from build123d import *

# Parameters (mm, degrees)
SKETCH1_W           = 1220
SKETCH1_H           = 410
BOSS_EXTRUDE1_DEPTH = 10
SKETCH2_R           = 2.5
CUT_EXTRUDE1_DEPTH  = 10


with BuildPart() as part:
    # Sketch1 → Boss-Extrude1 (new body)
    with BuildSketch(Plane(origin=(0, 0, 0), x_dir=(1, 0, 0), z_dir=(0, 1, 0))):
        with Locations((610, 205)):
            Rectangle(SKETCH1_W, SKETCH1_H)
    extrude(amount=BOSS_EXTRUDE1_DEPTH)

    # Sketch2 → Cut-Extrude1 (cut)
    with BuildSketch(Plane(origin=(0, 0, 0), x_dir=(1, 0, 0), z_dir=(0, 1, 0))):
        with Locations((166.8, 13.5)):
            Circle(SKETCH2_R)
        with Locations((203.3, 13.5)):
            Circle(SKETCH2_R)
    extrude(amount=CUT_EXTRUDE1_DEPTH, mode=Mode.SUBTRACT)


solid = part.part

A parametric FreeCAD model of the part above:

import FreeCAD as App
import Part
import Sketcher
from FreeCAD import Vector

doc = App.newDocument("Part")
body = doc.addObject("PartDesign::Body", "Body")

# Sketch on XZ plane
sketch1 = body.newObject("Sketcher::SketchObject", "Sketch")
sketch1.AttachmentSupport = (doc.getObject("XZ_Plane"), [""])
sketch1.MapMode = "FlatFace"
sketch1.addGeometry([
    Part.LineSegment(Vector(0, -410, 0), Vector(0, 0, 0)),
    Part.LineSegment(Vector(0, 0, 0), Vector(1220, 0, 0)),
    Part.LineSegment(Vector(1220, 0, 0), Vector(1220, -410, 0)),
    Part.LineSegment(Vector(1220, -410, 0), Vector(0, -410, 0)),
], False)
sketch1.addConstraint([
    Sketcher.Constraint("Coincident", 0, 2, 1, 1),
    Sketcher.Constraint("Coincident", 1, 2, 2, 1),
    Sketcher.Constraint("Coincident", 2, 2, 3, 1),
    Sketcher.Constraint("Coincident", 3, 2, 0, 1),
    Sketcher.Constraint("Vertical", 0),
    Sketcher.Constraint("Horizontal", 1),
    Sketcher.Constraint("Vertical", 2),
    Sketcher.Constraint("Horizontal", 3),
    Sketcher.Constraint("Coincident", 0, 2, -1, 1),
    Sketcher.Constraint("DistanceX", 1, 1, 1, 2, 1220.0),
    Sketcher.Constraint("DistanceY", 0, 1, 0, 2, 410.0),
])
pad1 = body.newObject("PartDesign::Pad", "Pad")
pad1.Profile = sketch1
pad1.Length = 10
pad1.Reversed = True

# Sketch on XZ plane
sketch2 = body.newObject("Sketcher::SketchObject", "Sketch001")
sketch2.AttachmentSupport = (doc.getObject("XZ_Plane"), [""])
sketch2.MapMode = "FlatFace"
sketch2.addGeometry([
    Part.Circle(Vector(166.8, -13.5, 0), Vector(0, 0, 1), 2.5),
    Part.Circle(Vector(203.3, -13.5, 0), Vector(0, 0, 1), 2.5),
], False)
sketch2.addConstraint([
    Sketcher.Constraint("Equal", 0, 1),
    Sketcher.Constraint("Horizontal", 0, 3, 1, 3),
    Sketcher.Constraint("Diameter", 0, 5.0),
    Sketcher.Constraint("DistanceX", -1, 1, 0, 3, 166.8),
    Sketcher.Constraint("DistanceY", 0, 3, -1, 1, 13.5),
    Sketcher.Constraint("DistanceX", -1, 1, 1, 3, 203.3),
])
pocket1 = body.newObject("PartDesign::Pocket", "Pocket")
pocket1.Profile = sketch2
pocket1.Length = 10

doc.recompute()
